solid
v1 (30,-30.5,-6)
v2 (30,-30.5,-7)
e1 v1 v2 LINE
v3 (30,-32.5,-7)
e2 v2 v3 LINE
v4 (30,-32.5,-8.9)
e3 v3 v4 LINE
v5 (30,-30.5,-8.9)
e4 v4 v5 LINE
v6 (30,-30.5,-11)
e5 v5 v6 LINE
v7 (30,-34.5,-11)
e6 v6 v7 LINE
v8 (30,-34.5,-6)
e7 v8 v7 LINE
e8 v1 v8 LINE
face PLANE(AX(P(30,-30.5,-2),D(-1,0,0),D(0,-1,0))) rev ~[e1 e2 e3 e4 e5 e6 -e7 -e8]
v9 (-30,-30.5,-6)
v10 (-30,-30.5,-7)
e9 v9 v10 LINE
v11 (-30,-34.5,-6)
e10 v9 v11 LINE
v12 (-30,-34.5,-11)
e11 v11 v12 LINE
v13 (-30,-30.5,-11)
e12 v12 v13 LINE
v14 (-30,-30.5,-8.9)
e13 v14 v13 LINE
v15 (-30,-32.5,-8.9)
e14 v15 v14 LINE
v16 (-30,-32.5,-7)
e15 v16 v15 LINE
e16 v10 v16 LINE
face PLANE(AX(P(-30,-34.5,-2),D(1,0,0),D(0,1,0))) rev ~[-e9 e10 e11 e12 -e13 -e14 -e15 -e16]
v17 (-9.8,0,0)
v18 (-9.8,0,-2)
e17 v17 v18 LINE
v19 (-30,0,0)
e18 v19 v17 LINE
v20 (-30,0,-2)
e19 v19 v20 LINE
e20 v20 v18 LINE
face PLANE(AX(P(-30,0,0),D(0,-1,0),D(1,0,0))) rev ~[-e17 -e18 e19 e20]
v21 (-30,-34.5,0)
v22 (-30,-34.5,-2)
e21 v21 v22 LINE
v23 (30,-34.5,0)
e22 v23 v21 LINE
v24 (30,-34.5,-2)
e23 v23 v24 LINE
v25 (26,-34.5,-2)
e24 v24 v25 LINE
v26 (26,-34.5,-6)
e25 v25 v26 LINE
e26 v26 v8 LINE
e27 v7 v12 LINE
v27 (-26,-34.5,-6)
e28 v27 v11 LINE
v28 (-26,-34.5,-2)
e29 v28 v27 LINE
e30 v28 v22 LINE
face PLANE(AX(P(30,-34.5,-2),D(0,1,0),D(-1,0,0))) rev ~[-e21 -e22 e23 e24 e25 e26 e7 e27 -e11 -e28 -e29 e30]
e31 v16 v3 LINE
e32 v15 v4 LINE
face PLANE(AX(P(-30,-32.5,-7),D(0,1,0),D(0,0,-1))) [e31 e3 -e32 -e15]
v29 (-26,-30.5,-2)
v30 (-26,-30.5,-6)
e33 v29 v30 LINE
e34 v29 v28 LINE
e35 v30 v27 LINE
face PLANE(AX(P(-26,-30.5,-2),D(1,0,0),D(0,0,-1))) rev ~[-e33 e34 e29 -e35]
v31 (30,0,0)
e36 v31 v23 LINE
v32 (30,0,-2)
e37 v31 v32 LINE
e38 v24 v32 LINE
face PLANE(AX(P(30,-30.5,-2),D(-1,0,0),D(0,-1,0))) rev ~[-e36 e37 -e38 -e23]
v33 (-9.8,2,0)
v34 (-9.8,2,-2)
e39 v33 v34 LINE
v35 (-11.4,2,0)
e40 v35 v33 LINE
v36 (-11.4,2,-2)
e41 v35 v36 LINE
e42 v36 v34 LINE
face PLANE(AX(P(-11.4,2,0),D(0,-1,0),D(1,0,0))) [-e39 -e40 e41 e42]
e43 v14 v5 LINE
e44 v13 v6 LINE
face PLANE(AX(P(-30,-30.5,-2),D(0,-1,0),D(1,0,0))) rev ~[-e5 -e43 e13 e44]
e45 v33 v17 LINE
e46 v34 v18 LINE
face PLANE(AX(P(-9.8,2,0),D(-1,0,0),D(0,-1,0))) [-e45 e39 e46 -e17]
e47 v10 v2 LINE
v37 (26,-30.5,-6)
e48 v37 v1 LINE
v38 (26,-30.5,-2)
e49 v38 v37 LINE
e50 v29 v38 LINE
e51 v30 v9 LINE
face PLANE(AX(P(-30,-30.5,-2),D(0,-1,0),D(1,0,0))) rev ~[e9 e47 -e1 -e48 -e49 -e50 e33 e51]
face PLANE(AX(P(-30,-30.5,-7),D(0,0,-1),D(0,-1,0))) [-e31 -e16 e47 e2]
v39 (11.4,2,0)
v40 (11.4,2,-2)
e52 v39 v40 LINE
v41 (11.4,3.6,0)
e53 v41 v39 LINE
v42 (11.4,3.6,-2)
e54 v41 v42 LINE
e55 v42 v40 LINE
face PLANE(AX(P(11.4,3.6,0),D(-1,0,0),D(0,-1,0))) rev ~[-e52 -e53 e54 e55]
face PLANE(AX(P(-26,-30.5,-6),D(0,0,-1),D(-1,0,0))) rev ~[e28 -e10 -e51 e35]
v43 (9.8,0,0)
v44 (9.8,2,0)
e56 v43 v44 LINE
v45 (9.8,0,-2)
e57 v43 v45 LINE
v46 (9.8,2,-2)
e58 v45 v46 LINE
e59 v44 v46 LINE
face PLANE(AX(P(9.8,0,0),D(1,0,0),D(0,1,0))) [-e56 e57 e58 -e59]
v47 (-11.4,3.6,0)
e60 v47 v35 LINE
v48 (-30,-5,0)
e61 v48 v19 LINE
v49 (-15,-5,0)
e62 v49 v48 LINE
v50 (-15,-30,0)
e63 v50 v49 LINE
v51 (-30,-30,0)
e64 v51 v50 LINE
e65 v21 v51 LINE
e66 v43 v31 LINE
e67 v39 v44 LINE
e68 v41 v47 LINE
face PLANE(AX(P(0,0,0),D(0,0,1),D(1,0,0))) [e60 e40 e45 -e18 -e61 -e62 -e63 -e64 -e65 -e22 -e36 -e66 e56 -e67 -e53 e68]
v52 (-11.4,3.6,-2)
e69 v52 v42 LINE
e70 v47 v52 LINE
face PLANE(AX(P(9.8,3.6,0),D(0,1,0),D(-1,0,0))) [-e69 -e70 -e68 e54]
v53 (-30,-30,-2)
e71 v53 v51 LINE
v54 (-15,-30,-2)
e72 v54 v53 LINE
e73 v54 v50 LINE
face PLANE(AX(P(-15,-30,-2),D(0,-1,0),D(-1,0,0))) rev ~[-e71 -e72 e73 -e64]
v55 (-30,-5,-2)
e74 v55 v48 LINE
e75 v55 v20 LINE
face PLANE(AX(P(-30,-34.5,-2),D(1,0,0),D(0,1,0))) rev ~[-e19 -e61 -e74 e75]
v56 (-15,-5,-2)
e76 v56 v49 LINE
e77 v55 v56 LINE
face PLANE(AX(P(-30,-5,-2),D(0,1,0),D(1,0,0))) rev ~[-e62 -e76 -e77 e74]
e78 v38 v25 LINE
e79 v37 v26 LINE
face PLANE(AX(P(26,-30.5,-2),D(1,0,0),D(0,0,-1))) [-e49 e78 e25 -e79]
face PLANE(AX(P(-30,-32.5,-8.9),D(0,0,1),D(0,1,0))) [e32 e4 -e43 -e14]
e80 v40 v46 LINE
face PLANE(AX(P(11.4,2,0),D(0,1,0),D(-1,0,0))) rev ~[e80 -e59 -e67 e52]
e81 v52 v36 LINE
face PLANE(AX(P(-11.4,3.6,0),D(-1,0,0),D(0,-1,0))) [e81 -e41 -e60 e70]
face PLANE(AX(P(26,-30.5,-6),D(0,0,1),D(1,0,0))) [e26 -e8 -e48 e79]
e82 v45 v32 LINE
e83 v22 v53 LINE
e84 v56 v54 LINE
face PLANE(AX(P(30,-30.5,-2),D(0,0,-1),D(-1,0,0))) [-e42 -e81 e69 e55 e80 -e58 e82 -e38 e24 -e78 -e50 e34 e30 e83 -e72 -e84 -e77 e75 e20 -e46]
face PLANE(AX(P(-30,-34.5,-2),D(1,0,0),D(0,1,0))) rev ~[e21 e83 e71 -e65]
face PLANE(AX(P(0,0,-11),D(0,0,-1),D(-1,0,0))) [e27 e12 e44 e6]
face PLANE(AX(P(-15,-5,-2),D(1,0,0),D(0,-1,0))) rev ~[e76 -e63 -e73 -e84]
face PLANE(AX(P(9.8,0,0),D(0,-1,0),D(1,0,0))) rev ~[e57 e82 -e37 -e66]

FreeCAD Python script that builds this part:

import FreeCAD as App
import Part
import Sketcher

V = App.Vector

doc = App.newDocument("Part")
body = doc.addObject("PartDesign::Body", "Body")

sketch1 = doc.addObject("Sketcher::SketchObject", "Sketch")
body.addObject(sketch1)
sketch1.AttachmentSupport = (doc.XY_Plane, [""])
sketch1.MapMode = "FlatFace"
sketch1.addGeometry([
    Part.LineSegment(V(-9.8, 0, 0), V(-30, 0, 0)),
    Part.LineSegment(V(-30, 0, 0), V(-30, -34.5, 0)),
    Part.LineSegment(V(-30, -34.5, 0), V(30, -34.5, 0)),
    Part.LineSegment(V(30, -34.5, 0), V(30, 0, 0)),
    Part.LineSegment(V(30, 0, 0), V(9.8, 0, 0)),
    Part.LineSegment(V(9.8, 0, 0), V(9.8, 2, 0)),
    Part.LineSegment(V(9.8, 2, 0), V(11.4, 2, 0)),
    Part.LineSegment(V(11.4, 2, 0), V(11.4, 3.6, 0)),
    Part.LineSegment(V(11.4, 3.6, 0), V(-11.4, 3.6, 0)),
    Part.LineSegment(V(-11.4, 3.6, 0), V(-11.4, 2, 0)),
    Part.LineSegment(V(-11.4, 2, 0), V(-9.8, 2, 0)),
    Part.LineSegment(V(-9.8, 2, 0), V(-9.8, 0, 0)),
], False)
sketch1.addConstraint([
    Sketcher.Constraint("Coincident", 0, 2, 1, 1),
    Sketcher.Constraint("Coincident", 1, 2, 2, 1),
    Sketcher.Constraint("Coincident", 2, 2, 3, 1),
    Sketcher.Constraint("Coincident", 3, 2, 4, 1),
    Sketcher.Constraint("Coincident", 4, 2, 5, 1),
    Sketcher.Constraint("Coincident", 5, 2, 6, 1),
    Sketcher.Constraint("Coincident", 6, 2, 7, 1),
    Sketcher.Constraint("Coincident", 7, 2, 8, 1),
    Sketcher.Constraint("Coincident", 8, 2, 9, 1),
    Sketcher.Constraint("Coincident", 9, 2, 10, 1),
    Sketcher.Constraint("Coincident", 10, 2, 11, 1),
    Sketcher.Constraint("Coincident", 11, 2, 0, 1),
    Sketcher.Constraint("Horizontal", 0),
    Sketcher.Constraint("Vertical", 1),
    Sketcher.Constraint("Horizontal", 2),
    Sketcher.Constraint("Vertical", 3),
    Sketcher.Constraint("Horizontal", 4),
    Sketcher.Constraint("Vertical", 5),
    Sketcher.Constraint("Horizontal", 6),
    Sketcher.Constraint("Vertical", 7),
    Sketcher.Constraint("Horizontal", 8),
    Sketcher.Constraint("Vertical", 9),
    Sketcher.Constraint("Horizontal", 10),
    Sketcher.Constraint("Vertical", 11),
    Sketcher.Constraint("Symmetric", 0, 2, 3, 2, -1, 1),
    Sketcher.Constraint("Symmetric", 6, 2, 9, 2, -2),
    Sketcher.Constraint("Symmetric", 4, 2, 11, 2, -2),
    Sketcher.Constraint("Equal", 10, 7),
    Sketcher.Constraint("DistanceX", 2, 1, 2, 2, 60.0),
    Sketcher.Constraint("DistanceX", 6, 1, 6, 2, 1.6),
    Sketcher.Constraint("DistanceY", 1, 2, 1, 1, 34.5),
    Sketcher.Constraint("DistanceX", -1, 1, 4, 2, 9.8),
    Sketcher.Constraint("DistanceY", -1, 1, 7, 2, 3.6),
])
pad1 = doc.addObject("PartDesign::Pad", "Pad")
body.addObject(pad1)
pad1.Profile = sketch1
pad1.Length = 2
pad1.Reversed = True

sketch2 = doc.addObject("Sketcher::SketchObject", "Sketch001")
body.addObject(sketch2)
sketch2.AttachmentSupport = (doc.XY_Plane, [""])
sketch2.MapMode = "FlatFace"
sketch2.AttachmentOffset = App.Placement(V(0, 0, -2), App.Rotation())
sketch2.addGeometry([
    Part.LineSegment(V(30, -30.5, 0), V(30, -34.5, 0)),
    Part.LineSegment(V(30, -34.5, 0), V(-30, -34.5, 0)),
    Part.LineSegment(V(-30, -34.5, 0), V(-30, -30.5, 0)),
    Part.LineSegment(V(-30, -30.5, 0), V(30, -30.5, 0)),
], False)
sketch2.addConstraint([
    Sketcher.Constraint("Coincident", 0, 2, 1, 1),
    Sketcher.Constraint("Coincident", 1, 2, 2, 1),
    Sketcher.Constraint("Coincident", 2, 2, 3, 1),
    Sketcher.Constraint("Coincident", 3, 2, 0, 1),
    Sketcher.Constraint("Vertical", 0),
    Sketcher.Constraint("Horizontal", 1),
    Sketcher.Constraint("Vertical", 2),
    Sketcher.Constraint("Horizontal", 3),
    Sketcher.Constraint("DistanceY", 0, 2, 0, 1, 4.0),
    Sketcher.Constraint("DistanceX", 1, 2, 1, 1, 60.0),
    Sketcher.Constraint("DistanceX", -1, 1, 0, 2, 30.0),
    Sketcher.Constraint("DistanceY", 0, 2, -1, 1, 34.5),
])
pad2 = doc.addObject("PartDesign::Pad", "Pad001")
body.addObject(pad2)
pad2.Profile = sketch2
pad2.Length = 9
pad2.Reversed = True

sketch3 = doc.addObject("Sketcher::SketchObject", "Sketch002")
body.addObject(sketch3)
sketch3.AttachmentSupport = (doc.YZ_Plane, [""])
sketch3.MapMode = "FlatFace"
sketch3.AttachmentOffset = App.Placement(V(0, 0, -30), App.Rotation())
sketch3.addGeometry([
    Part.LineSegment(V(-32.5, -7, 0), V(-30.5, -7, 0)),
    Part.LineSegment(V(-30.5, -7, 0), V(-30.5, -8.9, 0)),
    Part.LineSegment(V(-30.5, -8.9, 0), V(-32.5, -8.9, 0)),
    Part.LineSegment(V(-32.5, -8.9, 0), V(-32.5, -7, 0)),
], False)
sketch3.addConstraint([
    Sketcher.Constraint("Coincident", 0, 2, 1, 1),
    Sketcher.Constraint("Coincident", 1, 2, 2, 1),
    Sketcher.Constraint("Coincident", 2, 2, 3, 1),
    Sketcher.Constraint("Coincident", 3, 2, 0, 1),
    Sketcher.Constraint("Horizontal", 0),
    Sketcher.Constraint("Vertical", 1),
    Sketcher.Constraint("Horizontal", 2),
    Sketcher.Constraint("Vertical", 3),
    Sketcher.Constraint("DistanceX", 0, 1, 0, 2, 2.0),
    Sketcher.Constraint("DistanceY", 1, 2, 1, 1, 1.9),
    Sketcher.Constraint("DistanceY", 0, 2, -1, 1, 7.0),
    Sketcher.Constraint("DistanceX", 0, 2, -1, 1, 30.5),
])
pocket1 = doc.addObject("PartDesign::Pocket", "Pocket")
body.addObject(pocket1)
pocket1.Profile = sketch3
pocket1.Type = "ThroughAll"
pocket1.Reversed = True

sketch4 = doc.addObject("Sketcher::SketchObject", "Sketch003")
body.addObject(sketch4)
sketch4.AttachmentSupport = (doc.XZ_Plane, [""])
sketch4.MapMode = "FlatFace"
sketch4.AttachmentOffset = App.Placement(V(0, 0, 30.5), App.Rotation())
sketch4.addGeometry([
    Part.LineSegment(V(-30, -2, 0), V(-26, -2, 0)),
    Part.LineSegment(V(-26, -2, 0), V(-26, -6, 0)),
    Part.LineSegment(V(-26, -6, 0), V(-30, -6, 0)),
    Part.LineSegment(V(-30, -6, 0), V(-30, -2, 0)),
    Part.LineSegment(V(26, -2, 0), V(30, -2, 0)),
    Part.LineSegment(V(30, -2, 0), V(30, -6, 0)),
    Part.LineSegment(V(30, -6, 0), V(26, -6, 0)),
    Part.LineSegment(V(26, -6, 0), V(26, -2, 0)),
], False)
sketch4.addConstraint([
    Sketcher.Constraint("Coincident", 0, 2, 1, 1),
    Sketcher.Constraint("Coincident", 1, 2, 2, 1),
    Sketcher.Constraint("Coincident", 2, 2, 3, 1),
    Sketcher.Constraint("Coincident", 3, 2, 0, 1),
    Sketcher.Constraint("Coincident", 4, 2, 5, 1),
    Sketcher.Constraint("Coincident", 5, 2, 6, 1),
    Sketcher.Constraint("Coincident", 6, 2, 7, 1),
    Sketcher.Constraint("Coincident", 7, 2, 4, 1),
    Sketcher.Constraint("Horizontal", 0),
    Sketcher.Constraint("Vertical", 1),
    Sketcher.Constraint("Horizontal", 2),
    Sketcher.Constraint("Vertical", 3),
    Sketcher.Constraint("Horizontal", 4),
    Sketcher.Constraint("Vertical", 5),
    Sketcher.Constraint("Horizontal", 6),
    Sketcher.Constraint("Vertical", 7),
    Sketcher.Constraint("Symmetric", 3, 2, 4, 2, -2),
    Sketcher.Constraint("Symmetric", 1, 2, 6, 2, -2),
    Sketcher.Constraint("Equal", 6, 1),
    Sketcher.Constraint("DistanceX", 0, 1, 0, 2, 4.0),
    Sketcher.Constraint("DistanceX", 0, 2, -1, 1, 26.0),
    Sketcher.Constraint("DistanceY", 0, 2, -1, 1, 2.0),
])
pocket2 = doc.addObject("PartDesign::Pocket", "Pocket001")
body.addObject(pocket2)
pocket2.Profile = sketch4
pocket2.Length = 10
pocket2.Reversed = True

sketch5 = doc.addObject("Sketcher::SketchObject", "Sketch004")
body.addObject(sketch5)
sketch5.AttachmentSupport = (doc.XY_Plane, [""])
sketch5.MapMode = "FlatFace"
sketch5.AttachmentOffset = App.Placement(V(0, 0, -2), App.Rotation())
sketch5.addGeometry([
    Part.LineSegment(V(-30, -30, 0), V(-30, -5, 0)),
    Part.LineSegment(V(-30, -5, 0), V(-15, -5, 0)),
    Part.LineSegment(V(-15, -5, 0), V(-15, -30, 0)),
    Part.LineSegment(V(-15, -30, 0), V(-30, -30, 0)),
], False)
sketch5.addConstraint([
    Sketcher.Constraint("Coincident", 0, 2, 1, 1),
    Sketcher.Constraint("Coincident", 1, 2, 2, 1),
    Sketcher.Constraint("Coincident", 2, 2, 3, 1),
    Sketcher.Constraint("Coincident", 3, 2, 0, 1),
    Sketcher.Constraint("Vertical", 0),
    Sketcher.Constraint("Horizontal", 1),
    Sketcher.Constraint("Vertical", 2),
    Sketcher.Constraint("Horizontal", 3),
    Sketcher.Constraint("DistanceX", 1, 1, 1, 2, 15.0),
    Sketcher.Constraint("DistanceY", 0, 1, 0, 2, 25.0),
    Sketcher.Constraint("DistanceY", 0, 2, -1, 1, 5.0),
    Sketcher.Constraint("DistanceX", 1, 2, -1, 1, 15.0),
])
pocket3 = doc.addObject("PartDesign::Pocket", "Pocket002")
body.addObject(pocket3)
pocket3.Profile = sketch5
pocket3.Length = 10
pocket3.Reversed = True

doc.recompute()
